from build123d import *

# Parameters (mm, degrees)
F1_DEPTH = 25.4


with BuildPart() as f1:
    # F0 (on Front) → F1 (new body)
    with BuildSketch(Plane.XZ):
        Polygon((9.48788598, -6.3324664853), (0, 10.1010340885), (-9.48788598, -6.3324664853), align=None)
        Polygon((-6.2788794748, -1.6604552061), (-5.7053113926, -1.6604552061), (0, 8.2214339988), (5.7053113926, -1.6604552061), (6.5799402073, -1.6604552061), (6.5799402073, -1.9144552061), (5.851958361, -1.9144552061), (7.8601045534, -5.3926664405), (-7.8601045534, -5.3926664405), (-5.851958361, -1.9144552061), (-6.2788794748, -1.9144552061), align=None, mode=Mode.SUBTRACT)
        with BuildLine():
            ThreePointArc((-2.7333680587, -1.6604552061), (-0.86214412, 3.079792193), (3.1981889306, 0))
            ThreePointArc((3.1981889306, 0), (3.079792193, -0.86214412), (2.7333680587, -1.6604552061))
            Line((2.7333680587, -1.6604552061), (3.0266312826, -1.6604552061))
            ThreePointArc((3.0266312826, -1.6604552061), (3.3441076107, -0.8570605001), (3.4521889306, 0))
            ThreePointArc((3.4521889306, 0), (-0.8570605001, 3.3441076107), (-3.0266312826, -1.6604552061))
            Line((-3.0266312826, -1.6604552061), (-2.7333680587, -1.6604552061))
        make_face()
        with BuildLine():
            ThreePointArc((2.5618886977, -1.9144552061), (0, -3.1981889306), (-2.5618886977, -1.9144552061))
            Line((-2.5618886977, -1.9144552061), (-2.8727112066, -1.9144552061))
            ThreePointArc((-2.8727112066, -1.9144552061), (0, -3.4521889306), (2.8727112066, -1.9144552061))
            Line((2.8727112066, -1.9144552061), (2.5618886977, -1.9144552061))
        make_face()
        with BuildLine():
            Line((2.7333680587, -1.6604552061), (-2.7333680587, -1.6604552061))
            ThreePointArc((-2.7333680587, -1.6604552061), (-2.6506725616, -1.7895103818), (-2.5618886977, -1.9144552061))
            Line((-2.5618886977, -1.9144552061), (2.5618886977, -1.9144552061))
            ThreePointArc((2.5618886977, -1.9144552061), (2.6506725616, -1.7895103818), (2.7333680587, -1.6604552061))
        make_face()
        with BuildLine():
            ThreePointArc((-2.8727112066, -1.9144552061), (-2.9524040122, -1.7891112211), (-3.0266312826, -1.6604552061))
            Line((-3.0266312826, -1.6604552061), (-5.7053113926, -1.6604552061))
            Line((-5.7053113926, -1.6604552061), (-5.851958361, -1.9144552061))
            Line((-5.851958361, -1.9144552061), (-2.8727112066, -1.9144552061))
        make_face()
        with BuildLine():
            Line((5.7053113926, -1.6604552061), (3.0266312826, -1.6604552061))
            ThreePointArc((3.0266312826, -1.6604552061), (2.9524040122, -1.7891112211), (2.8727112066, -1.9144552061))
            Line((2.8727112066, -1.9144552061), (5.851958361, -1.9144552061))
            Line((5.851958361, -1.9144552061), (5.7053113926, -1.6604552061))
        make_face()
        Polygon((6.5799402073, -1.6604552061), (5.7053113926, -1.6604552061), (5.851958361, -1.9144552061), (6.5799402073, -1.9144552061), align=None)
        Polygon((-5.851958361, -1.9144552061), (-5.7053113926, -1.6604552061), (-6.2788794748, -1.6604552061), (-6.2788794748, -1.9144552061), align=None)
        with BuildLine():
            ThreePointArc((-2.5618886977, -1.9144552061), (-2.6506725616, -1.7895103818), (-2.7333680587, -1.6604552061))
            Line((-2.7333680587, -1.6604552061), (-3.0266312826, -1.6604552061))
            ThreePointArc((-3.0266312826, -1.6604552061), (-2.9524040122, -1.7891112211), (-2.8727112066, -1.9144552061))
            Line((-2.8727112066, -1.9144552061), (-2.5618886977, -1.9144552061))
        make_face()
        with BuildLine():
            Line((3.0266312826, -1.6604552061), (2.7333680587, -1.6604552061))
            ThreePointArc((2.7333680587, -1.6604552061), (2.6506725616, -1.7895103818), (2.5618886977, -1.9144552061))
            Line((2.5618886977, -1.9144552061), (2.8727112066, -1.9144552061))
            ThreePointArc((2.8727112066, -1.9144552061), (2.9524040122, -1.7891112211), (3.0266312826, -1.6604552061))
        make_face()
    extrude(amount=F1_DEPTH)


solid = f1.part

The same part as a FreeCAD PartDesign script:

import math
import FreeCAD as App
import Part
import Sketcher
Q = App.Units.Quantity

doc = App.newDocument("Part")
body = doc.addObject("PartDesign::Body", "Body")

# Sketch on XZ plane
sketch1 = body.newObject("Sketcher::SketchObject", "Sketch")
sketch1.AttachmentSupport = (doc.getObject("XZ_Plane"), [""])
sketch1.MapMode = "FlatFace"
sketch1.addGeometry([
    Part.LineSegment(App.Vector(9.487886, -6.332466, 0), App.Vector(0, 10.101034, 0)),  # 0
    Part.LineSegment(App.Vector(0, 10.101034, 0), App.Vector(-9.487886, -6.332466, 0)),  # 1
    Part.LineSegment(App.Vector(-9.487886, -6.332466, 0), App.Vector(9.487886, -6.332466, 0)),  # 2
    Part.ArcOfCircle(Part.Circle(App.Vector(0, 0, 0), App.Vector(0, 0, 1), 3.452189), math.radians(-146.3194), math.radians(-33.6806)),  # 3
    Part.LineSegment(App.Vector(2.872711, -1.914455, 0), App.Vector(5.851958, -1.914455, 0)),  # 4
    Part.LineSegment(App.Vector(5.851958, -1.914455, 0), App.Vector(7.860105, -5.392666, 0)),  # 5
    Part.LineSegment(App.Vector(7.860105, -5.392666, 0), App.Vector(-7.860105, -5.392666, 0)),  # 6
    Part.LineSegment(App.Vector(-7.860105, -5.392666, 0), App.Vector(-5.851958, -1.914455, 0)),  # 7
    Part.LineSegment(App.Vector(-5.851958, -1.914455, 0), App.Vector(-2.872711, -1.914455, 0)),  # 8
    Part.LineSegment(App.Vector(-2.561889, -1.914455, 0), App.Vector(2.561889, -1.914455, 0)),  # 9
    Part.ArcOfCircle(Part.Circle(App.Vector(0, 0, 0), App.Vector(0, 0, 1), 3.198189), math.radians(-143.229872), math.radians(-36.770128)),  # 10
    Part.ArcOfCircle(Part.Circle(App.Vector(0, 0, 0), App.Vector(0, 0, 1), 3.198189), math.radians(-31.277672), math.radians(0)),  # 11
    Part.LineSegment(App.Vector(2.733368, -1.660455, 0), App.Vector(-2.733368, -1.660455, 0)),  # 12
    Part.ArcOfCircle(Part.Circle(App.Vector(0, 0, 0), App.Vector(0, 0, 1), 3.198189), math.radians(0), math.radians(211.277672)),  # 13
    Part.LineSegment(App.Vector(5.705311, -1.660455, 0), App.Vector(3.026631, -1.660455, 0)),  # 14
    Part.ArcOfCircle(Part.Circle(App.Vector(0, 0, 0), App.Vector(0, 0, 1), 3.452189), math.radians(-28.749832), math.radians(0)),  # 15
    Part.ArcOfCircle(Part.Circle(App.Vector(0, 0, 0), App.Vector(0, 0, 1), 3.452189), math.radians(0), math.radians(208.749832)),  # 16
    Part.LineSegment(App.Vector(-3.026631, -1.660455, 0), App.Vector(-5.705311, -1.660455, 0)),  # 17
    Part.LineSegment(App.Vector(-5.705311, -1.660455, 0), App.Vector(0, 8.221434, 0)),  # 18
    Part.LineSegment(App.Vector(0, 8.221434, 0), App.Vector(5.705311, -1.660455, 0)),  # 19
], False)
sketch1.addConstraint([
    Sketcher.Constraint("Coincident", 0, 2, 1, 1),
    Sketcher.Constraint("Coincident", 1, 2, 2, 1),
    Sketcher.Constraint("Coincident", 2, 2, 0, 1),
    Sketcher.Constraint("Coincident", 3, 2, 4, 1),
    Sketcher.Constraint("Coincident", 4, 2, 5, 1),
    Sketcher.Constraint("Coincident", 5, 2, 6, 1),
    Sketcher.Constraint("Coincident", 6, 2, 7, 1),
    Sketcher.Constraint("Coincident", 7, 2, 8, 1),
    Sketcher.Constraint("Coincident", 8, 2, 3, 1),
    Sketcher.Constraint("Coincident", 9, 1, 10, 1),
    Sketcher.Constraint("Coincident", 10, 2, 9, 2),
    Sketcher.Constraint("Coincident", 11, 1, 12, 1),
    Sketcher.Constraint("Coincident", 12, 2, 13, 2),
    Sketcher.Constraint("Tangent", 13, 1, 11, 2),
    Sketcher.Constraint("Coincident", 14, 2, 15, 1),
    Sketcher.Constraint("Tangent", 15, 2, 16, 1),
    Sketcher.Constraint("Coincident", 16, 2, 17, 1),
    Sketcher.Constraint("Coincident", 17, 2, 18, 1),
    Sketcher.Constraint("Coincident", 18, 2, 19, 1),
    Sketcher.Constraint("Coincident", 19, 2, 14, 1),
    Sketcher.Constraint("Horizontal", 2),
    Sketcher.Constraint("Horizontal", 4),
    Sketcher.Constraint("Horizontal", 6),
    Sketcher.Constraint("Horizontal", 8),
    Sketcher.Constraint("Horizontal", 9),
    Sketcher.Constraint("Horizontal", 12),
    Sketcher.Constraint("Horizontal", 14),
    Sketcher.Constraint("Horizontal", 17),
    Sketcher.Constraint("Coincident", 3, 3, -1, 1),
    Sketcher.Constraint("Coincident", 10, 3, -1, 1),
    Sketcher.Constraint("Coincident", 11, 3, -1, 1),
    Sketcher.Constraint("Coincident", 15, 3, -1, 1),
    Sketcher.Constraint("Equal", 10, 11),
    Sketcher.Constraint("Equal", 11, 13),
    Sketcher.Constraint("Equal", 3, 15),
    Sketcher.Constraint("Equal", 15, 16),
    Sketcher.Constraint("Symmetric", 4, 2, 7, 2, -2),
    Sketcher.Constraint("Symmetric", 17, 2, 19, 2, -2),
    Sketcher.Constraint("PointOnObject", 0, 2, -2),
    Sketcher.Constraint("PointOnObject", 13, 1, -1),
    Sketcher.Constraint("PointOnObject", 15, 2, -1),
    Sketcher.Constraint("PointOnObject", 18, 2, -2),
    Sketcher.Constraint("Parallel", 0, 5),
    Sketcher.Constraint("Parallel", 1, 7),
    Sketcher.Constraint("Parallel", 7, 18),
    Sketcher.Constraint("Parallel", 5, 19),
    Sketcher.Constraint("Horizontal", 8, 2, 9, 1),
    Sketcher.Constraint("Horizontal", 12, 2, 14, 2),
    Sketcher.Constraint("Angle", 0, Q("120 deg")),
    Sketcher.Constraint("DistanceY", 3, 2, 11, 1, Q("0.01 in")),
    Sketcher.Constraint("DistanceX", 13, 1, 15, 2, Q("0.01 in")),
    Sketcher.Constraint("Radius", 3, 3.452189),
    Sketcher.Constraint("DistanceY", 2, 2, 5, 2, Q("0.037 in")),
    Sketcher.Constraint("DistanceY", 18, 2, 0, 2, Q("0.074 in")),
    Sketcher.Constraint("DistanceX", 11, 1, 13, 1, Q("0.0183 in")),
    Sketcher.Constraint("DistanceX", 2, 1, 2, 2, 18.975772),
    Sketcher.Constraint("DistanceX", 6, 2, 6, 1, 15.720209),
    Sketcher.Constraint("DistanceX", 14, 2, 14, 1, 2.67868),
])
pad1 = body.newObject("PartDesign::Pad", "Pad")
pad1.Profile = sketch1
pad1.Length = Q("1 in")

doc.recompute()
